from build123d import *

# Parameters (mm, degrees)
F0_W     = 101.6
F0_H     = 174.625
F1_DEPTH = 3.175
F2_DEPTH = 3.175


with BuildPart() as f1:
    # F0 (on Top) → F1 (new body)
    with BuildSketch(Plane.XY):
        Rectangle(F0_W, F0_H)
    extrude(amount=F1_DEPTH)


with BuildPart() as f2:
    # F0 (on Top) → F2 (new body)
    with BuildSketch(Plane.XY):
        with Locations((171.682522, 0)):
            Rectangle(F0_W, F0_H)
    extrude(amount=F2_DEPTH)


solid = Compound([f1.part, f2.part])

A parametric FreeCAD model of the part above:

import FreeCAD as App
import Part
import Sketcher

V = App.Vector
Q = App.Units.Quantity

doc = App.newDocument("Part")
params = doc.addObject("Spreadsheet::Sheet", "Params")
for row, (alias, value) in enumerate([
    ("sketch1_width", "4 in"),
    ("sketch1_height", "6.875 in"),
    ("pad1_length", "0.125 in"),
    ("sketch2_width", "4 in"),
    ("sketch2_height", "6.875 in"),
    ("pad2_length", "0.125 in"),
], start=1):
    params.set(f"A{row}", alias)
    params.set(f"B{row}", "=" + value)
    params.setAlias(f"B{row}", alias)

body = doc.addObject("PartDesign::Body", "Body")

# Sketch on XY plane
sketch1 = body.newObject("Sketcher::SketchObject", "Sketch")
sketch1.AttachmentSupport = (doc.getObject("XY_Plane"), [""])
sketch1.MapMode = "FlatFace"
sketch1.addGeometry([
    Part.LineSegment(V(-51, 87, 0), V(-51, -87, 0)),
    Part.LineSegment(V(-51, -87, 0), V(51, -87, 0)),
    Part.LineSegment(V(51, -87, 0), V(51, 87, 0)),
    Part.LineSegment(V(51, 87, 0), V(-51, 87, 0)),
], False)
sketch1.addConstraint([
    Sketcher.Constraint("Coincident", 0, 2, 1, 1),
    Sketcher.Constraint("Coincident", 1, 2, 2, 1),
    Sketcher.Constraint("Coincident", 2, 2, 3, 1),
    Sketcher.Constraint("Coincident", 3, 2, 0, 1),
    Sketcher.Constraint("Vertical", 0),
    Sketcher.Constraint("Horizontal", 1),
    Sketcher.Constraint("Vertical", 2),
    Sketcher.Constraint("Horizontal", 3),
    Sketcher.Constraint("Symmetric", 0, 2, 2, 2, -1, 1),
    Sketcher.Constraint("DistanceX", 1, 1, 1, 2, Q("4 in")),
    Sketcher.Constraint("DistanceY", 0, 2, 0, 1, Q("6.875 in")),
])
sketch1.setExpression("Constraints[9]", "Params.sketch1_width")
sketch1.setExpression("Constraints[10]", "Params.sketch1_height")
pad1 = body.newObject("PartDesign::Pad", "Pad")
pad1.Profile = sketch1
pad1.setExpression("Length", "Params.pad1_length")
body2 = doc.addObject("PartDesign::Body", "Body001")

# Sketch on XY plane
sketch2 = body2.newObject("Sketcher::SketchObject", "Sketch001")
sketch2.AttachmentSupport = (doc.getObject("XY_Plane001"), [""])
sketch2.MapMode = "FlatFace"
sketch2.addGeometry([
    Part.LineSegment(V(121, 87, 0), V(121, -87, 0)),
    Part.LineSegment(V(121, -87, 0), V(222, -87, 0)),
    Part.LineSegment(V(222, -87, 0), V(222, 87, 0)),
    Part.LineSegment(V(222, 87, 0), V(121, 87, 0)),
], False)
sketch2.addConstraint([
    Sketcher.Constraint("Coincident", 0, 2, 1, 1),
    Sketcher.Constraint("Coincident", 1, 2, 2, 1),
    Sketcher.Constraint("Coincident", 2, 2, 3, 1),
    Sketcher.Constraint("Coincident", 3, 2, 0, 1),
    Sketcher.Constraint("Vertical", 0),
    Sketcher.Constraint("Horizontal", 1),
    Sketcher.Constraint("Vertical", 2),
    Sketcher.Constraint("Horizontal", 3),
    Sketcher.Constraint("DistanceX", 1, 1, 1, 2, Q("4 in")),
    Sketcher.Constraint("DistanceY", 0, 2, 0, 1, Q("6.875 in")),
    Sketcher.Constraint("DistanceY", 0, 2, -1, 1, Q("3.4375 in")),
    Sketcher.Constraint("DistanceX", -1, 1, 0, 2, 120.882522),
])
sketch2.setExpression("Constraints[8]", "Params.sketch2_width")
sketch2.setExpression("Constraints[9]", "Params.sketch2_height")
pad2 = body2.newObject("PartDesign::Pad", "Pad001")
pad2.Profile = sketch2
pad2.setExpression("Length", "Params.pad2_length")

doc.recompute()
